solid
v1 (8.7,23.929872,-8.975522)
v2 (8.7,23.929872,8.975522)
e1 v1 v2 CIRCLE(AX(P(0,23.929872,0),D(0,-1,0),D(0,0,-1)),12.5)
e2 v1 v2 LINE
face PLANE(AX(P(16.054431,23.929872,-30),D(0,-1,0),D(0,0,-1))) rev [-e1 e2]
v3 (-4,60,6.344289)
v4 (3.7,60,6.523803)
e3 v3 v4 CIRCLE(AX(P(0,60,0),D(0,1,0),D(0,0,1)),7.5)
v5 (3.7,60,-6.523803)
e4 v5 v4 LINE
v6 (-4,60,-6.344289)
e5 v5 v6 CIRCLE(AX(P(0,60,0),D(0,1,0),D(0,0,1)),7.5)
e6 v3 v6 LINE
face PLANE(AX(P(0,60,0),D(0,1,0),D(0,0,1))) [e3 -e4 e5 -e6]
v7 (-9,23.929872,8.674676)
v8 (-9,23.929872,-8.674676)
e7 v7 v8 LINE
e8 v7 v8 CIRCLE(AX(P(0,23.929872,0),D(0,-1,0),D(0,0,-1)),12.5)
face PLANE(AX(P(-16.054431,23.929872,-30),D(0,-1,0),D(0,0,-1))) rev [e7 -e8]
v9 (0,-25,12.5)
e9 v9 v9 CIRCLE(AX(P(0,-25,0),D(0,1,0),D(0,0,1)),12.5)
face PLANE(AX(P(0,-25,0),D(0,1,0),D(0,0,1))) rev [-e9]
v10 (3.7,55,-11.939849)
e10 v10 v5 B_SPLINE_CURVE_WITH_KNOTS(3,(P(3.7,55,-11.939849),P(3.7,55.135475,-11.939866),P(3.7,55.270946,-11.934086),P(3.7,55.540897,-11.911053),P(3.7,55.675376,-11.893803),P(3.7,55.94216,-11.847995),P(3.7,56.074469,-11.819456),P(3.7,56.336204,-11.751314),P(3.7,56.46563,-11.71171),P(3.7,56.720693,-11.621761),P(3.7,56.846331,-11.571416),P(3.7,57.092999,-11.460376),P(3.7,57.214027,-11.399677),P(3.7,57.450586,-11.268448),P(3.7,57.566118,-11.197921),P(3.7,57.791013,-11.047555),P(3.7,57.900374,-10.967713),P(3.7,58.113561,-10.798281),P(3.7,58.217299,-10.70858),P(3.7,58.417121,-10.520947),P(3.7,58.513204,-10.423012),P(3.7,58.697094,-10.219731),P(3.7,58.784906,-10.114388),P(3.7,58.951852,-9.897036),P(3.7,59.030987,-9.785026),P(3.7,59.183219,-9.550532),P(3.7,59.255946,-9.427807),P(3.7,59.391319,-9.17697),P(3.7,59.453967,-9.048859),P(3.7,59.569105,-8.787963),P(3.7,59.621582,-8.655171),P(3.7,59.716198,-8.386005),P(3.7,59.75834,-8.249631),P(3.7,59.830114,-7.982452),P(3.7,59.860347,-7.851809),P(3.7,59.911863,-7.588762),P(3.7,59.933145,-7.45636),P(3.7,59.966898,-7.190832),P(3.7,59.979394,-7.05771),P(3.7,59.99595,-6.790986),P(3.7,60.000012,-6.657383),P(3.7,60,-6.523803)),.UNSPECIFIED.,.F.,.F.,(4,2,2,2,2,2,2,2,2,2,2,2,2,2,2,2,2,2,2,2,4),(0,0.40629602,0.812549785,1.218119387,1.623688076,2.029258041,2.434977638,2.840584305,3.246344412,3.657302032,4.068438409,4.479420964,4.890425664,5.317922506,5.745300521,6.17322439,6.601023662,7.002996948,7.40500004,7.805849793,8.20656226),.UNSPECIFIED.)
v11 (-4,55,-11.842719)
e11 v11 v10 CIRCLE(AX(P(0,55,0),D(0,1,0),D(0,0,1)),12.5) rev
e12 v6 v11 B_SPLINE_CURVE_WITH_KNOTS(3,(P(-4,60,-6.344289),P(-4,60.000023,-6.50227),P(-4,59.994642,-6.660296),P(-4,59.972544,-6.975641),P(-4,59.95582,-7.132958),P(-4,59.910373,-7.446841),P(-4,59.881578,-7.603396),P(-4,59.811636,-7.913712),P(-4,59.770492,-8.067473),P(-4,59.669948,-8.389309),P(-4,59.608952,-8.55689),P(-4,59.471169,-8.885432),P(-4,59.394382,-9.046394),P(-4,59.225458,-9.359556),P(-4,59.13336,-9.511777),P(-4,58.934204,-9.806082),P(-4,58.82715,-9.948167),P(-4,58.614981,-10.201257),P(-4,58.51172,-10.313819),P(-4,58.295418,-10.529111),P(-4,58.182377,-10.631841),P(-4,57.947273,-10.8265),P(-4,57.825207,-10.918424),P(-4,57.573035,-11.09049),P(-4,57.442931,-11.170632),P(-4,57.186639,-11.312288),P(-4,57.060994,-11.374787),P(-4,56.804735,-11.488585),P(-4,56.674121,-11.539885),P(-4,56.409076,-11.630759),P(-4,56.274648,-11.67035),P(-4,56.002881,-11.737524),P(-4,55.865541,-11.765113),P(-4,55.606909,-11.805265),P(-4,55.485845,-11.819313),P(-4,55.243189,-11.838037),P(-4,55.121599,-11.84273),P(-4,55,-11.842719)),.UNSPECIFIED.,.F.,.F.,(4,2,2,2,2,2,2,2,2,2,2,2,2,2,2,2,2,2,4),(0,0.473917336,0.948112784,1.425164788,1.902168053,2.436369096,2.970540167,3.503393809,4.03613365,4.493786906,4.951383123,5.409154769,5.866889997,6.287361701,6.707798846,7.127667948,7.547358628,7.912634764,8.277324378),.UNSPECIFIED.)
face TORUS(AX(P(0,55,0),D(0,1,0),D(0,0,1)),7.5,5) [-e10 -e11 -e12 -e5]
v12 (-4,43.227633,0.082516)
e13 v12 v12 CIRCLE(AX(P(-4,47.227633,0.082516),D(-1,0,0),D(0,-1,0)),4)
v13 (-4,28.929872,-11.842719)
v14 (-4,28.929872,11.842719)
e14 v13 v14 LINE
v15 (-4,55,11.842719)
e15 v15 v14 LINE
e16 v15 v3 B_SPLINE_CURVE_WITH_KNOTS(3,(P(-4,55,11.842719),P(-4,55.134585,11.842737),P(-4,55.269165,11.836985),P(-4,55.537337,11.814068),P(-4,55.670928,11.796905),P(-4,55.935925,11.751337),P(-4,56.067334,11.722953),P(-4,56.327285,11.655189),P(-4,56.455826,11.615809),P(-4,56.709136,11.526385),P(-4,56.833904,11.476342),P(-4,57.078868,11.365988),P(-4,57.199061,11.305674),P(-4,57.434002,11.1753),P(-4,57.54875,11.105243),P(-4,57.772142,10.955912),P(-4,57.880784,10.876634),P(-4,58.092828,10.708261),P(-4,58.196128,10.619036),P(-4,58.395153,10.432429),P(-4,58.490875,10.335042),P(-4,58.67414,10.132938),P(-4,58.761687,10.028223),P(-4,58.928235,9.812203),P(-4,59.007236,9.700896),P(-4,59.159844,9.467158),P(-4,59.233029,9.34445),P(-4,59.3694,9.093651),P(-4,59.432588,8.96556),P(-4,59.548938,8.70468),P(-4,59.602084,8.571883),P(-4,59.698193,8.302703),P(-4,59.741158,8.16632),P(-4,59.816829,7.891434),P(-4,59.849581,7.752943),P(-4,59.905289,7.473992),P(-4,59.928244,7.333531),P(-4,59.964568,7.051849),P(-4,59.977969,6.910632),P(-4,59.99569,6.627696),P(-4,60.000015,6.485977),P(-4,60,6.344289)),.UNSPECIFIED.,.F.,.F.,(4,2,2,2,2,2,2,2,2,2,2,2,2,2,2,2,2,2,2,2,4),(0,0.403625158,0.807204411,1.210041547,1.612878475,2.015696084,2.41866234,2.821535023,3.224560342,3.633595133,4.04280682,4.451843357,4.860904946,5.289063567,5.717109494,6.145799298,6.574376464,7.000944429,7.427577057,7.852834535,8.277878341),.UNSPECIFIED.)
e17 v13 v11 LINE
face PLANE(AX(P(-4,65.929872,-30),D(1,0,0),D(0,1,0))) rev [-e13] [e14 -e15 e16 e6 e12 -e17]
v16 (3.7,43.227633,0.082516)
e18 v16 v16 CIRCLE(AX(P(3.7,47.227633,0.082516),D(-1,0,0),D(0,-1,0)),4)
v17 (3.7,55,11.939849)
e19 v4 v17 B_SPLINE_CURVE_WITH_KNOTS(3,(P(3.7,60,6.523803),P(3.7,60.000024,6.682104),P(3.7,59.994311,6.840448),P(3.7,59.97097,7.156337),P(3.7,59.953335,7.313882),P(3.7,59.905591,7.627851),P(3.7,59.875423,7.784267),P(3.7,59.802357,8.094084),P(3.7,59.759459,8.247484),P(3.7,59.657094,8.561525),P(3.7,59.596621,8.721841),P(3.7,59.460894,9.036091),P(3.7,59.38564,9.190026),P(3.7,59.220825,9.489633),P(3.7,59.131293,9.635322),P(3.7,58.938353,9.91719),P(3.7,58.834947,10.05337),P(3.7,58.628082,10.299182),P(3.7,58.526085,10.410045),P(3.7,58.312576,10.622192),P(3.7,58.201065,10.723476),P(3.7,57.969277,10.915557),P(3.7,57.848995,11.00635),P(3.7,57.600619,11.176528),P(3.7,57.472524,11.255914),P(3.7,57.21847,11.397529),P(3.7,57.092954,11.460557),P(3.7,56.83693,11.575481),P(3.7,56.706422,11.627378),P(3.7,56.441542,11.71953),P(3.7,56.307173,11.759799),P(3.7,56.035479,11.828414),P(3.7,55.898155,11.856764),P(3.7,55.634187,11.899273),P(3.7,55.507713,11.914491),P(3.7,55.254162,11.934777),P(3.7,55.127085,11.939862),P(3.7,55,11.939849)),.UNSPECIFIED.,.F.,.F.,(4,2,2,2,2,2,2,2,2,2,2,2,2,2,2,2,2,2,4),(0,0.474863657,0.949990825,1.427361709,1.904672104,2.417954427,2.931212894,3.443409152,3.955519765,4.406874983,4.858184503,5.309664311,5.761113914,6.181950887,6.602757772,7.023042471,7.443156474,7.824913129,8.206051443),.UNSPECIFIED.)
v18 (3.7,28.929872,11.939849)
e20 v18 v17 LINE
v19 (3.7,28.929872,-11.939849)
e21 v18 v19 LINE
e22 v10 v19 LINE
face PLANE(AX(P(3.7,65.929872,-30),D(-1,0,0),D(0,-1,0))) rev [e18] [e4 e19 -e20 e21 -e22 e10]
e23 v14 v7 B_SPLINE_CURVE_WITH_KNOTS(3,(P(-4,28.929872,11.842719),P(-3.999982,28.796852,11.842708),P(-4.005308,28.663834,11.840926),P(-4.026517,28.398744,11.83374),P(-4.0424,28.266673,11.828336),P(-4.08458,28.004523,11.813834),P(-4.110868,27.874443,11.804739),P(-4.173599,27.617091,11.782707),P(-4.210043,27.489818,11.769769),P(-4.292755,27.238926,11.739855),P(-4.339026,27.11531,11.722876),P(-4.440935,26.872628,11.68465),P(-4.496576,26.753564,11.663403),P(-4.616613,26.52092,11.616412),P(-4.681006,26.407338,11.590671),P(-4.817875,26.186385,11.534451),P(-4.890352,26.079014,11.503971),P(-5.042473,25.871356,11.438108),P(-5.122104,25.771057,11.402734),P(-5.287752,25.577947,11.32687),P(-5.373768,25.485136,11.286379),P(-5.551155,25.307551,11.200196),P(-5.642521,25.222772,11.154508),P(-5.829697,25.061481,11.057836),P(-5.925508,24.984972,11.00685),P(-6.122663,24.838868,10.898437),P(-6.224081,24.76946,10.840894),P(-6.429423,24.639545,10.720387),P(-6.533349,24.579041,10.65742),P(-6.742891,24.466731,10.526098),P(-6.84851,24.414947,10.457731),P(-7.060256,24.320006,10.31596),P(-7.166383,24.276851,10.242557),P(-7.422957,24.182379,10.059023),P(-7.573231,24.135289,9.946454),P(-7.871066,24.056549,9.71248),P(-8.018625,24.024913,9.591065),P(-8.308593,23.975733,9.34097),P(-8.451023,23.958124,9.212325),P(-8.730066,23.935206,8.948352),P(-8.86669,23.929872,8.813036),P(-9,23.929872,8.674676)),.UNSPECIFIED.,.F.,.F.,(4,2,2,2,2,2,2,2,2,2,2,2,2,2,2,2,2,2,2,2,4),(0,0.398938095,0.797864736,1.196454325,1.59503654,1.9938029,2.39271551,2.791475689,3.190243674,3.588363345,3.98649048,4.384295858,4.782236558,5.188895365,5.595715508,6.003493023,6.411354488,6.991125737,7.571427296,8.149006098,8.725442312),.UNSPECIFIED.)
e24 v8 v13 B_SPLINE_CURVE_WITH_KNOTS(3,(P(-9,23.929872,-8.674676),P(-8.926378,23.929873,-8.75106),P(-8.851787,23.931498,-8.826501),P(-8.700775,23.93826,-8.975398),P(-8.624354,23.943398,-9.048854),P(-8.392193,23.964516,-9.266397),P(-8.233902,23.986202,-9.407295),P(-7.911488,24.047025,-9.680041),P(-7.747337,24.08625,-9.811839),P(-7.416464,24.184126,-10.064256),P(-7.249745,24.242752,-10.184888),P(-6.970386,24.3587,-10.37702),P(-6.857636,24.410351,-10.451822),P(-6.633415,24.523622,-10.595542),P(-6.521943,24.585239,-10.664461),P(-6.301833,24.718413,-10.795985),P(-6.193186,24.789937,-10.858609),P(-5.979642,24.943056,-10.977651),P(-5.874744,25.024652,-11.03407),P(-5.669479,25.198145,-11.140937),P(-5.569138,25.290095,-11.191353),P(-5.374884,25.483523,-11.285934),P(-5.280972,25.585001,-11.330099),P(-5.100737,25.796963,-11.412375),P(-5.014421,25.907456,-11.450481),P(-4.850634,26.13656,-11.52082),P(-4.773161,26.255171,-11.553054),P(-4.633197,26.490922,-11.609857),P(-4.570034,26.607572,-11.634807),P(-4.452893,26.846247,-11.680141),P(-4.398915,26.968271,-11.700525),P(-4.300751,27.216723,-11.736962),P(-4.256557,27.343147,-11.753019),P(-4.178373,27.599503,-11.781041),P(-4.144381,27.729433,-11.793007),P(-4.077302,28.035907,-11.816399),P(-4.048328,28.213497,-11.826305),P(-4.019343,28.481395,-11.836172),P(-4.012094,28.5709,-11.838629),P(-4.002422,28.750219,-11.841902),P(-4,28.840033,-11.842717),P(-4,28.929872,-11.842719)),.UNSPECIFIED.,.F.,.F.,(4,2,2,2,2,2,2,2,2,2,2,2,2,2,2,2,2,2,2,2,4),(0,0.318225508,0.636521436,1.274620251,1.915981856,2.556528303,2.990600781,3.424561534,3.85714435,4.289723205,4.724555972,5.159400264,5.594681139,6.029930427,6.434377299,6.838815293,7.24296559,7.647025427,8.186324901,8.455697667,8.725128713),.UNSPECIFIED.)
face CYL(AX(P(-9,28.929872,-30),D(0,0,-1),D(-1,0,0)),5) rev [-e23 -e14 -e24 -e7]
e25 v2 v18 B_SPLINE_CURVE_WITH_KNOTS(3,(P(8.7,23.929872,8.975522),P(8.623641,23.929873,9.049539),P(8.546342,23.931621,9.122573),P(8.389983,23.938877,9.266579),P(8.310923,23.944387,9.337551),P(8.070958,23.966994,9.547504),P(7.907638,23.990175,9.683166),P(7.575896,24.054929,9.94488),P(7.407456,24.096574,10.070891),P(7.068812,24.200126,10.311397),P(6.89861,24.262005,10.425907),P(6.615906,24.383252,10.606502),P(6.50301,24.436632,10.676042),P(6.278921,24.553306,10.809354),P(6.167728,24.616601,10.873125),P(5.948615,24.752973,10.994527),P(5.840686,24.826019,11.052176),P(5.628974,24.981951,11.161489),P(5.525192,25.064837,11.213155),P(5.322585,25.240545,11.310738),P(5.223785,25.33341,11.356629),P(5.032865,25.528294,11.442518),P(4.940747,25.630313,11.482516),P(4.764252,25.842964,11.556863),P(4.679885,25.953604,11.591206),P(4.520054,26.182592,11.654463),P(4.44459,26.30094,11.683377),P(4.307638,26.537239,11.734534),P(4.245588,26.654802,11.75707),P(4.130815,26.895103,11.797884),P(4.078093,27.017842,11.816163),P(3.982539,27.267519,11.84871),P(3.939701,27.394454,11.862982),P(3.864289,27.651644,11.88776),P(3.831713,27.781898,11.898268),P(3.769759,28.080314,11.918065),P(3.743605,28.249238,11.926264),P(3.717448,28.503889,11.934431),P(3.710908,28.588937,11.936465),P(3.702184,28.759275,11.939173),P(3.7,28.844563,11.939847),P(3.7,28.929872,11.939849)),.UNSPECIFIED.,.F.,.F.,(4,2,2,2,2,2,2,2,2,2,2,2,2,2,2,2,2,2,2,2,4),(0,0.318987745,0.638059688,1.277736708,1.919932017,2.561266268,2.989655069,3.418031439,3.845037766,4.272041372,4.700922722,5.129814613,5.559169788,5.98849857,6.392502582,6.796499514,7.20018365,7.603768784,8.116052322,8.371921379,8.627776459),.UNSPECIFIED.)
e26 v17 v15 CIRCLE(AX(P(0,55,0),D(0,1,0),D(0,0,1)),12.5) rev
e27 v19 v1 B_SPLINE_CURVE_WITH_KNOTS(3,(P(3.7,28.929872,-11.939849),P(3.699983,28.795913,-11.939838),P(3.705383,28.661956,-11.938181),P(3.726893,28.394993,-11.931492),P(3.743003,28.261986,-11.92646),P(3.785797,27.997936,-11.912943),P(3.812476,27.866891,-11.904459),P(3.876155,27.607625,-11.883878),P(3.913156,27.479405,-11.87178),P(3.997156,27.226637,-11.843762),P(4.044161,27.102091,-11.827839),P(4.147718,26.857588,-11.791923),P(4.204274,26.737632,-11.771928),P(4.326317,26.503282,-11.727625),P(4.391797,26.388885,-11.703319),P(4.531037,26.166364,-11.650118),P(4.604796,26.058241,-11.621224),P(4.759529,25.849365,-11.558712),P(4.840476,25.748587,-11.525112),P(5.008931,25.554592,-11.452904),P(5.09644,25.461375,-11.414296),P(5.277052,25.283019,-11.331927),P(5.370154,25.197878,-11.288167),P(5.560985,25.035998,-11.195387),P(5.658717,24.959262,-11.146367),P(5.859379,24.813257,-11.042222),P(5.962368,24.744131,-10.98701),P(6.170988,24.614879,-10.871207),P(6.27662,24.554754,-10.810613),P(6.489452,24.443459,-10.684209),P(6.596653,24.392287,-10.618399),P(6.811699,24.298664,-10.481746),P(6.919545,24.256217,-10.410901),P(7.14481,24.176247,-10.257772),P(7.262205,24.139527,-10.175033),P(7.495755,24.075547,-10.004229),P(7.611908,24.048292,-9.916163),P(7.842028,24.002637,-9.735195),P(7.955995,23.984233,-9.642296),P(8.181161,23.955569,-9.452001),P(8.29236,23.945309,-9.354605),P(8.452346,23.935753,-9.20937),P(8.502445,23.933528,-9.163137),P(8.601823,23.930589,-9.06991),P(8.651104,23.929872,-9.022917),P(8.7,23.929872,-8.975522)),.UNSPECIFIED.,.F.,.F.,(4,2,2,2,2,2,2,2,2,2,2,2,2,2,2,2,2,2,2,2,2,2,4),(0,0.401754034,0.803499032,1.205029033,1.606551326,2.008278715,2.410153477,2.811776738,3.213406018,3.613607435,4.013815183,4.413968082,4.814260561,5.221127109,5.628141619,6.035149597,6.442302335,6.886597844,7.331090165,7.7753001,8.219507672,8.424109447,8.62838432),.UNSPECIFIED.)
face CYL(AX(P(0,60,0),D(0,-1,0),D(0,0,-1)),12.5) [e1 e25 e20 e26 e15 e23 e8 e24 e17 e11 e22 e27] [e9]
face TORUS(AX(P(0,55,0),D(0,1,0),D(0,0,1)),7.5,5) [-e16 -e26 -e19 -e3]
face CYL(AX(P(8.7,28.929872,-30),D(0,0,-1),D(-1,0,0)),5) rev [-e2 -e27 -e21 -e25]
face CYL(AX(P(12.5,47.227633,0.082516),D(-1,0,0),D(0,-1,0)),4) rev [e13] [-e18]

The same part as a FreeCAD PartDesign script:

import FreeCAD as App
import Part
import Sketcher
from FreeCAD import Vector
Q = App.Units.Quantity


def edges_at(feature, points):
    """Names of the edges that pass closest to the given points."""
    edges = feature.Shape.Edges
    near = lambda p: min(range(len(edges)), key=lambda i: edges[i].distToShape(Part.Vertex(*p))[0])
    return sorted({f"Edge{near(p) + 1}" for p in points})


def add_polygon(sketch, points):
    """Adds a closed chain of lines whose ends are joined by coincident constraints."""
    first, n = sketch.GeometryCount, len(points)
    for a, b in zip(points, points[1:] + points[:1]):
        sketch.addGeometry(Part.LineSegment(App.Vector(*a, 0), App.Vector(*b, 0)), False)
    for i in range(n):
        sketch.addConstraint(Sketcher.Constraint("Coincident", first + i, 2, first + (i + 1) % n, 1))

doc = App.newDocument("Part")
body = doc.addObject("PartDesign::Body", "Body")

sketch1 = doc.addObject("Sketcher::SketchObject", "Sketch")
body.addObject(sketch1)
sketch1.AttachmentSupport = (doc.XZ_Plane, [""])
sketch1.MapMode = "FlatFace"
sketch1.AttachmentOffset = App.Placement(Vector(0, 0, 25), App.Rotation())
sketch1.addGeometry(Part.Circle(Vector(0, 0, 0), Vector(0, 0, 1), 12), False)
sketch1.addConstraint([
    Sketcher.Constraint("Coincident", 0, 3, -1, 1),
    Sketcher.Constraint("Diameter", 0, Q("25 mm")),
])
pad1 = doc.addObject("PartDesign::Pad", "Pad")
body.addObject(pad1)
pad1.Profile = sketch1
pad1.Length = 85
pad1.Reversed = True

sketch2 = doc.addObject("Sketcher::SketchObject", "Sketch001")
body.addObject(sketch2)
sketch2.AttachmentSupport = (doc.XY_Plane, [""])
sketch2.MapMode = "FlatFace"
add_polygon(sketch2, [(4, 66), (4, 24), (16, 24), (16, 66)])
add_polygon(sketch2, [(-16, 66), (-16, 24), (-4, 24), (-4, 66)])
sketch2.addConstraint([
    Sketcher.Constraint("Vertical", 0),
    Sketcher.Constraint("Horizontal", 1),
    Sketcher.Constraint("Vertical", 2),
    Sketcher.Constraint("Horizontal", 3),
    Sketcher.Constraint("Vertical", 4),
    Sketcher.Constraint("Horizontal", 5),
    Sketcher.Constraint("Vertical", 6),
    Sketcher.Constraint("Horizontal", 7),
    Sketcher.Constraint("Symmetric", 1, 2, 4, 2, -2),
    Sketcher.Constraint("Horizontal", 3, 2, 6, 2),
    Sketcher.Constraint("DistanceY", 0, 2, 0, 1, Q("42 mm")),
    Sketcher.Constraint("DistanceX", 5, 2, -1, 1, Q("4 mm")),
    Sketcher.Constraint("DistanceX", -1, 1, 0, 2, Q("3.7 mm")),
    Sketcher.Constraint("DistanceX", 1, 1, 1, 2, Q("12.354431 mm")),
    Sketcher.Constraint("DistanceY", -1, 1, 0, 2, Q("23.929872 mm")),
])
pocket1 = doc.addObject("PartDesign::Pocket", "Pocket")
body.addObject(pocket1)
pocket1.Profile = sketch2
pocket1.Length = 60
pocket1.Midplane = True
doc.recompute()

fillet = doc.addObject("PartDesign::Fillet", "Fillet")
body.addObject(fillet)
fillet.Base = (pocket1, edges_at(pocket1, [(-0.158, 60, -12.499), (-2.027, 60, 12.335)]))
fillet.Radius = 5

sketch3 = doc.addObject("Sketcher::SketchObject", "Sketch002")
body.addObject(sketch3)
sketch3.AttachmentSupport = (doc.YZ_Plane, [""])
sketch3.MapMode = "FlatFace"
sketch3.AttachmentOffset = App.Placement(Vector(0, 0, -4), App.Rotation())
sketch3.addGeometry(Part.Circle(Vector(47.2, 0.1, 0), Vector(0, 0, 1), 4), False)
sketch3.addConstraint([
    Sketcher.Constraint("Diameter", 0, Q("8 mm")),
    Sketcher.Constraint("DistanceX", -1, 1, 0, 3, Q("47.227633 mm")),
    Sketcher.Constraint("DistanceY", -1, 1, 0, 3, Q("0.082516 mm")),
])
pocket2 = doc.addObject("PartDesign::Pocket", "Pocket001")
body.addObject(pocket2)
pocket2.Profile = sketch3
pocket2.Type = "ThroughAll"
pocket2.Reversed = True
doc.recompute()

fillet2 = doc.addObject("PartDesign::Fillet", "Fillet001")
body.addObject(fillet2)
fillet2.Base = (pocket2, edges_at(pocket2, [(3.7, 23.93, 0), (-4, 23.93, 0)]))
fillet2.Radius = 5

doc.recompute()
